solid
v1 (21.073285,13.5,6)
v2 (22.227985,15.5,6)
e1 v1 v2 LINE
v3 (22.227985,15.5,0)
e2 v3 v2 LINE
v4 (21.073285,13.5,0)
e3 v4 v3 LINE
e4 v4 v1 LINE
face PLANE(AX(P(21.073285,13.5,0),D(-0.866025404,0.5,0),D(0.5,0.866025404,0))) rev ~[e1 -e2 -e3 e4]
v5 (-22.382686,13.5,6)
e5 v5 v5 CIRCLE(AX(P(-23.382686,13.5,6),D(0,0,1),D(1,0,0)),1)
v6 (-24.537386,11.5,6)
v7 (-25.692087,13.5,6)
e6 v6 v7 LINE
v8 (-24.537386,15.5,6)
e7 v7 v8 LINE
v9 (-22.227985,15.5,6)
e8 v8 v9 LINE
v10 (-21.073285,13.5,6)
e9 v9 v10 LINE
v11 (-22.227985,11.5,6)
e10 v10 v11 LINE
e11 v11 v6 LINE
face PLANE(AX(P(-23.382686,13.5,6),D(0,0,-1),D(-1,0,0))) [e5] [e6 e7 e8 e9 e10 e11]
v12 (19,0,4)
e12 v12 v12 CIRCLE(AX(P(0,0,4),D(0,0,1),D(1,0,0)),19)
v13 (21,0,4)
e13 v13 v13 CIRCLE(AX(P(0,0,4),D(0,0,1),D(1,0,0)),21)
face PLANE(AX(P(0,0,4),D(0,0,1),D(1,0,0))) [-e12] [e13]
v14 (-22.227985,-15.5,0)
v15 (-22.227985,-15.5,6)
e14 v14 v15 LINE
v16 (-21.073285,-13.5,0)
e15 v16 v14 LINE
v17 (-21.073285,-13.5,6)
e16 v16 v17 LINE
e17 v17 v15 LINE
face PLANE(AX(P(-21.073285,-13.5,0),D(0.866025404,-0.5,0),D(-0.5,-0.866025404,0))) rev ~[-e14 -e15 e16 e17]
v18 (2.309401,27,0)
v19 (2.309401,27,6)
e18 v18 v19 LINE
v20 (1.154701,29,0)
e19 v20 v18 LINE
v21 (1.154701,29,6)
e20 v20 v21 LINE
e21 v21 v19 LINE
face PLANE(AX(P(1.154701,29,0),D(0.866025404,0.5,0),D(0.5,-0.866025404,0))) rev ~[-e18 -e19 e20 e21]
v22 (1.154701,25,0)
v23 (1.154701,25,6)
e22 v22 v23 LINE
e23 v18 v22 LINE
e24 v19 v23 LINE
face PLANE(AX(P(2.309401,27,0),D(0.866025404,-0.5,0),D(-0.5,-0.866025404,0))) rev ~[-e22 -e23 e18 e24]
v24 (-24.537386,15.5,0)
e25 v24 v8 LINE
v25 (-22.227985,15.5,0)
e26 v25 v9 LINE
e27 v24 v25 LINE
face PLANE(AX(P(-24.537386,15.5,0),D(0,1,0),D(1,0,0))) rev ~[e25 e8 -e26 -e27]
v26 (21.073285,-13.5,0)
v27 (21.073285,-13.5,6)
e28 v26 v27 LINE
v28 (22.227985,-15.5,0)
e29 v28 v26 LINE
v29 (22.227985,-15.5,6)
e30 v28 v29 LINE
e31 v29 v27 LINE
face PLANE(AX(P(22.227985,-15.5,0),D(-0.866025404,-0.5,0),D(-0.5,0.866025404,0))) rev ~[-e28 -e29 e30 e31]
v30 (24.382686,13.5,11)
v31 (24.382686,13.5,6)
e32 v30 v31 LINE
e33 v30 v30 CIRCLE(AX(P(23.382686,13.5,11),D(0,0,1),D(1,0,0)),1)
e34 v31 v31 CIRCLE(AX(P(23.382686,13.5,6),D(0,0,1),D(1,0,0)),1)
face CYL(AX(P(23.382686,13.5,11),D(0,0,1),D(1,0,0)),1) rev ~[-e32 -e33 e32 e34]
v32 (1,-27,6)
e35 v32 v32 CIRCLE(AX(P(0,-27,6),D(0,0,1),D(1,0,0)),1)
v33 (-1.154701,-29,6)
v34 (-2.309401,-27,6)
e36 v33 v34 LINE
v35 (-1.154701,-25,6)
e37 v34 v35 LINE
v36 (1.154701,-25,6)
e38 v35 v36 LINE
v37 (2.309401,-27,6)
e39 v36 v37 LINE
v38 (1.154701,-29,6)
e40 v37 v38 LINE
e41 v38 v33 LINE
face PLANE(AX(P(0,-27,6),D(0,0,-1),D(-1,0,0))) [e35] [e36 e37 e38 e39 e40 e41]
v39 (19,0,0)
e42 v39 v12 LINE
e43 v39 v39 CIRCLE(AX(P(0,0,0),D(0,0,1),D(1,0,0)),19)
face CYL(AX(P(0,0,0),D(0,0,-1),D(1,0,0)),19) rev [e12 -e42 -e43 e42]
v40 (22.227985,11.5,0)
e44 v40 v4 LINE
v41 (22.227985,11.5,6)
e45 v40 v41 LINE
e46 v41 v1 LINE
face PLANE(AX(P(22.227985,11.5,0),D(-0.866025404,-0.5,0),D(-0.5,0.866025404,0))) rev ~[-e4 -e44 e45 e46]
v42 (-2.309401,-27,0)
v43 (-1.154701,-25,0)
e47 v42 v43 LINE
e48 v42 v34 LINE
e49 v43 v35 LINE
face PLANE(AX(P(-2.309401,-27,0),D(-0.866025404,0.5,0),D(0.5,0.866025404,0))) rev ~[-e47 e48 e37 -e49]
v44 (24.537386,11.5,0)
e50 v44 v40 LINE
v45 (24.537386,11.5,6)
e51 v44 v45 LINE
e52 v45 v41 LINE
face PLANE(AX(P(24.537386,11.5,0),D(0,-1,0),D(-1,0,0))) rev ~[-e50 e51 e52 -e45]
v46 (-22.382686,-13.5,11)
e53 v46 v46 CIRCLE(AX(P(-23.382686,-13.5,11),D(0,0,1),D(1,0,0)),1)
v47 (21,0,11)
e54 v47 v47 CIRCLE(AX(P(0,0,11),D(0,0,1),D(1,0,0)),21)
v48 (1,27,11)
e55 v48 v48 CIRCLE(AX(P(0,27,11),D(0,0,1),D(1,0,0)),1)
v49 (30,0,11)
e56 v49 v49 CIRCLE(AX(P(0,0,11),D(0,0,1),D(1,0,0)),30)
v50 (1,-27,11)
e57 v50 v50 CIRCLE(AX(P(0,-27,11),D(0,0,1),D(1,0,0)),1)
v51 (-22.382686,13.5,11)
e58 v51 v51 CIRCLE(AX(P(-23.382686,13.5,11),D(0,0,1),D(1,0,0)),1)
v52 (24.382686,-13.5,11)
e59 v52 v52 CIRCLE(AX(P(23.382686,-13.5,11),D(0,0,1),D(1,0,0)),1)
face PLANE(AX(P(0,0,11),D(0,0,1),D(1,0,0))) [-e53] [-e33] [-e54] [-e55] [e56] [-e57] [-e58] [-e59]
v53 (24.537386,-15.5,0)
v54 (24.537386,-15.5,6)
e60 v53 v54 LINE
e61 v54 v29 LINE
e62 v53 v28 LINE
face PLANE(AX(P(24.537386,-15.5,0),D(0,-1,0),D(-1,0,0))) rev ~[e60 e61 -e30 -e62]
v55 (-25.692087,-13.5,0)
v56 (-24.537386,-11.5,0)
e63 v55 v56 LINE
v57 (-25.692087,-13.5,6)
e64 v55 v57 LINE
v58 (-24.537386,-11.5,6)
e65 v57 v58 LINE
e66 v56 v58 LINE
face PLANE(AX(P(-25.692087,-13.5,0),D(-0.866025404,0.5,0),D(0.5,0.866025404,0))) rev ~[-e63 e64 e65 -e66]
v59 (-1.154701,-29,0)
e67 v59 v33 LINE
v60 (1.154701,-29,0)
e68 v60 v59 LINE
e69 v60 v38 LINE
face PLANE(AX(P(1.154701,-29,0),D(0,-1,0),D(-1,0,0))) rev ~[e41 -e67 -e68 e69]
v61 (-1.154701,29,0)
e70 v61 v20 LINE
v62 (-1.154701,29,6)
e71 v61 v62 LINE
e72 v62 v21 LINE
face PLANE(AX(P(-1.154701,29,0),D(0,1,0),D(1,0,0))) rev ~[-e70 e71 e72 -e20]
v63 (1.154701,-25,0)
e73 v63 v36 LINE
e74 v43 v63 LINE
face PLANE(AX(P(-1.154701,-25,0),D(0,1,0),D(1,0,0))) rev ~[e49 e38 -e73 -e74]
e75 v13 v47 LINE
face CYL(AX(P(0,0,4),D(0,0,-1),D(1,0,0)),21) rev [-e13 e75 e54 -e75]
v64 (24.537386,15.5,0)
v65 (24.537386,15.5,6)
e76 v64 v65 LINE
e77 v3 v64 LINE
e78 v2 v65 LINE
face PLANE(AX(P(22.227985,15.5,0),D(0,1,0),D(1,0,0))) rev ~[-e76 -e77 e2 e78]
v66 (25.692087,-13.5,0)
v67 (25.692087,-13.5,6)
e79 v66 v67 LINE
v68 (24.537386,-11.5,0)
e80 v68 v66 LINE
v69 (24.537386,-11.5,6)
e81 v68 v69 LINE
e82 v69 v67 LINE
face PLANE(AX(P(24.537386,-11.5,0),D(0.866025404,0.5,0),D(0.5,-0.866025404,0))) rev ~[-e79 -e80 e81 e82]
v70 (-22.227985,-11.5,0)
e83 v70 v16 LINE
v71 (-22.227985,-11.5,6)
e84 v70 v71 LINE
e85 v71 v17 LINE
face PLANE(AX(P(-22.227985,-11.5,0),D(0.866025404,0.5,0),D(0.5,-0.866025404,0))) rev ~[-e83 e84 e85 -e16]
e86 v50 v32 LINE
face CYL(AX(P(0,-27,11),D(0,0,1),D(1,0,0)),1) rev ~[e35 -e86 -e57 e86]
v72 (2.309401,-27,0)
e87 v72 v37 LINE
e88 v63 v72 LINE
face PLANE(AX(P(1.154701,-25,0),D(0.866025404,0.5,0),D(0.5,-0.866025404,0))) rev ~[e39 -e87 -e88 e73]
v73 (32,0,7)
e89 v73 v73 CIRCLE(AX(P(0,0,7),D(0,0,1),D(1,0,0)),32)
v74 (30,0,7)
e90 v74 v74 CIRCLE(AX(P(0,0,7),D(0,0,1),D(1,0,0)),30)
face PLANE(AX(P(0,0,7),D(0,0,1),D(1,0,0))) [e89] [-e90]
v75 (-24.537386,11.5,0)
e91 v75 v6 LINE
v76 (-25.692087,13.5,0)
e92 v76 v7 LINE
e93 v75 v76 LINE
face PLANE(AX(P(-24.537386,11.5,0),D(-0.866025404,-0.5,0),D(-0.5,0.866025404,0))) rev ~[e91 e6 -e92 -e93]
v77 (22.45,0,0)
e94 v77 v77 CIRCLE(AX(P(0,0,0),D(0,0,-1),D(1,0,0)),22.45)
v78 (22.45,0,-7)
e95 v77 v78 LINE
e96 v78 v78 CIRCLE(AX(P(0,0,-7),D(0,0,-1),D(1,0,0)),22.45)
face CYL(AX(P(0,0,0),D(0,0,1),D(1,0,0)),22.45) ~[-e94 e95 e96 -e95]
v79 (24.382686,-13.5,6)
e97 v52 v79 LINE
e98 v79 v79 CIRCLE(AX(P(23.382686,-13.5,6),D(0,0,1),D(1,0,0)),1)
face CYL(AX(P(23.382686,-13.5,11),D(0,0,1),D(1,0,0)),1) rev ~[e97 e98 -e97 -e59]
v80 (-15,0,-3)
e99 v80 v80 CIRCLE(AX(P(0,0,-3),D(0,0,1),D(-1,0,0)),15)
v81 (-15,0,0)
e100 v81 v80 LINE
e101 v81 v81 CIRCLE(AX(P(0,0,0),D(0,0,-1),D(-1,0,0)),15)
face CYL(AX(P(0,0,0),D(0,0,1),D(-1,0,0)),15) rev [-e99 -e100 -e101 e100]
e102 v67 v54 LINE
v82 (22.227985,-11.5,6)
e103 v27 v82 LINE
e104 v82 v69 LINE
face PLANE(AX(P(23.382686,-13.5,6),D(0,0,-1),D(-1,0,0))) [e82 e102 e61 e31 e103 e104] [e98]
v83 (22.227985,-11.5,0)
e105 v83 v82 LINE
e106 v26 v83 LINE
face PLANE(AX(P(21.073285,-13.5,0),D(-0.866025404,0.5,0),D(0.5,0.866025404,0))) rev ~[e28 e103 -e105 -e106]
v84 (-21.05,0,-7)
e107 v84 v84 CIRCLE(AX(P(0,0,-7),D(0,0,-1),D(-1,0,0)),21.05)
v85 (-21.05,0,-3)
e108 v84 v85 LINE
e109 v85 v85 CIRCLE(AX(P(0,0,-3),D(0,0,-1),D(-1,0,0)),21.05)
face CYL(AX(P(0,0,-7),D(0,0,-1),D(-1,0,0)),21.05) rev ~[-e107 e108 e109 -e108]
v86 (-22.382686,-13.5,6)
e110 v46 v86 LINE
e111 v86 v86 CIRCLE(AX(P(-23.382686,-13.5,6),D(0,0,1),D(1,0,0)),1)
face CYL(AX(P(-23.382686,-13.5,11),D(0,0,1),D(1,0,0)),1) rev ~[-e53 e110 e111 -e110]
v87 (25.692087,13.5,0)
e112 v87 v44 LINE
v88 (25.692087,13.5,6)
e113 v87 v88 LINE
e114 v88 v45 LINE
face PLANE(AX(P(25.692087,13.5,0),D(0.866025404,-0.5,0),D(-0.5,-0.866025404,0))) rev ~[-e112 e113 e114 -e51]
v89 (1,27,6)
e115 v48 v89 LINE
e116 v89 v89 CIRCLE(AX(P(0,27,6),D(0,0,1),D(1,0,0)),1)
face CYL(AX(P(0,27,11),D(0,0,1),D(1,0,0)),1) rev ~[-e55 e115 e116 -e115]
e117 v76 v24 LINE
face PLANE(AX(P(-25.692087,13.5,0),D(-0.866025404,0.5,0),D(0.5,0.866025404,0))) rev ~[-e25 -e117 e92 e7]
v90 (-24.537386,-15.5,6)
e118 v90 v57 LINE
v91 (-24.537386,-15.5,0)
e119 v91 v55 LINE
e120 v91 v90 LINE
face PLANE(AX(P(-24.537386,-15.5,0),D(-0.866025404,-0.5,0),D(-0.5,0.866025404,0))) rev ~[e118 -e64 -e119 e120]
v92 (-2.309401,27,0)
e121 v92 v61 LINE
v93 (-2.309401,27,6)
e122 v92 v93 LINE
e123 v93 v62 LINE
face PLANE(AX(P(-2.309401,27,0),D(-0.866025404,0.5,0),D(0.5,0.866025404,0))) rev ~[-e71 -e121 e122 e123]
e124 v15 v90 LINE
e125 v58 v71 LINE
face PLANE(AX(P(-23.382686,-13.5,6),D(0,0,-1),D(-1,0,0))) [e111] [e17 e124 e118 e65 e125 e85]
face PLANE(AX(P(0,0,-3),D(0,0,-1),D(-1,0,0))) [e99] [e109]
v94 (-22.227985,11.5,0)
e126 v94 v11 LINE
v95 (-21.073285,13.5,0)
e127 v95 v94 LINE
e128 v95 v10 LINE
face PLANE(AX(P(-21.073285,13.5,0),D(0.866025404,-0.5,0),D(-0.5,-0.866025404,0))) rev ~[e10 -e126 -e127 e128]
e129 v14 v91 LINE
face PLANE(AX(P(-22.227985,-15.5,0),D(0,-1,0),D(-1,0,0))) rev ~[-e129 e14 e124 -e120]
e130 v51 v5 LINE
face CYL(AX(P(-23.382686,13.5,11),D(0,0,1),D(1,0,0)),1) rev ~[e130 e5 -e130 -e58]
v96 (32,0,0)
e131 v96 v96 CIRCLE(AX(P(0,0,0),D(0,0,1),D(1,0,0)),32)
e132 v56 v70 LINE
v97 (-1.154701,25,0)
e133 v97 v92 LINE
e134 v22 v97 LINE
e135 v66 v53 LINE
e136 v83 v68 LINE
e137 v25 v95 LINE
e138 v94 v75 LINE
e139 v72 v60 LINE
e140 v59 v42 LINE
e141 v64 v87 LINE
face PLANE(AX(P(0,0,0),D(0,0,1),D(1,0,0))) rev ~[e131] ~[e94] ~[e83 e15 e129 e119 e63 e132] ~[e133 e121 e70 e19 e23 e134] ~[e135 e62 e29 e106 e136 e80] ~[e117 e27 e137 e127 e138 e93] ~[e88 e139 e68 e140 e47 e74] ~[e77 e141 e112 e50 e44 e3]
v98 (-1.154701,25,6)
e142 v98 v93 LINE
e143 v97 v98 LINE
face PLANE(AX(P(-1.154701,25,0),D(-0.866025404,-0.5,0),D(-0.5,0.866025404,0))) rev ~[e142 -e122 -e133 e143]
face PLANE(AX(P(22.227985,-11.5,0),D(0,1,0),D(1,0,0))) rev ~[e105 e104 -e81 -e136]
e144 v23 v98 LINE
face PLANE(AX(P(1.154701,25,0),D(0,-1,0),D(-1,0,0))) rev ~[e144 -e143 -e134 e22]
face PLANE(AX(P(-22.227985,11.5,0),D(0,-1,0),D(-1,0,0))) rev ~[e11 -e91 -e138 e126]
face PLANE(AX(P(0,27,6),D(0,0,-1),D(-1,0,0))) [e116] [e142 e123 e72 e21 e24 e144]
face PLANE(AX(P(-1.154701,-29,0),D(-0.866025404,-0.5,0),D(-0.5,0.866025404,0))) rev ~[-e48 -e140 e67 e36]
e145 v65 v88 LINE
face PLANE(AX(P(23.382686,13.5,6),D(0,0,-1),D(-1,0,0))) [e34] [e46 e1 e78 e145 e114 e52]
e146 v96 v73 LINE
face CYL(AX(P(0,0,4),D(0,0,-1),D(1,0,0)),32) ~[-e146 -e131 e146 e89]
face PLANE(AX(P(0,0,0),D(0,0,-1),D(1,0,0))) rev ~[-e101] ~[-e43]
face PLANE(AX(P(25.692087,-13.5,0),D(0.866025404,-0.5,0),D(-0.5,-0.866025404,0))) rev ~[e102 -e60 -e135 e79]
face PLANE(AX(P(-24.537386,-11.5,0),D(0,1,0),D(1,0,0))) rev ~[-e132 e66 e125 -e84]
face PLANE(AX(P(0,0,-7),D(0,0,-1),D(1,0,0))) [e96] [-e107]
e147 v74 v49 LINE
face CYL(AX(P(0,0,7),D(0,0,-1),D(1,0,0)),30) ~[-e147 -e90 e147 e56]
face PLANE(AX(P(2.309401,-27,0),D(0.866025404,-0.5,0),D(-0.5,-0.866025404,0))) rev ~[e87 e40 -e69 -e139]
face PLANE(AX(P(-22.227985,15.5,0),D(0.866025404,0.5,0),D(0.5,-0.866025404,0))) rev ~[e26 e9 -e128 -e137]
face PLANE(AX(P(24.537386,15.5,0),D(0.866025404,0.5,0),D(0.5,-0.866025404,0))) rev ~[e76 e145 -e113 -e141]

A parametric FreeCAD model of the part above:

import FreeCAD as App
import Part
import Sketcher

V = App.Vector
Q = App.Units.Quantity


def add_polygon(sketch, points):
    """Adds a closed chain of lines whose ends are joined by coincident constraints."""
    first, n = sketch.GeometryCount, len(points)
    for a, b in zip(points, points[1:] + points[:1]):
        sketch.addGeometry(Part.LineSegment(App.Vector(*a, 0), App.Vector(*b, 0)), False)
    for i in range(n):
        sketch.addConstraint(Sketcher.Constraint("Coincident", first + i, 2, first + (i + 1) % n, 1))

doc = App.newDocument("Part")
body = doc.addObject("PartDesign::Body", "Body")

# Sketch on XY plane
sketch1 = body.newObject("Sketcher::SketchObject", "Sketch")
sketch1.AttachmentSupport = (doc.getObject("XY_Plane"), [""])
sketch1.MapMode = "FlatFace"
sketch1.addGeometry([
    Part.Circle(V(0, 0, 0), V(0, 0, 1), 32),
    Part.Circle(V(0, 0, 0), V(0, 0, 1), 19),
], False)
sketch1.addConstraint([
    Sketcher.Constraint("Coincident", 0, 3, -1, 1),
    Sketcher.Constraint("Coincident", 1, 3, -1, 1),
    Sketcher.Constraint("Diameter", 0, Q("64 mm")),
    Sketcher.Constraint("Diameter", 1, Q("38 mm")),
])
pad1 = body.newObject("PartDesign::Pad", "Pad")
pad1.Profile = sketch1
pad1.Length = 4

# Sketch on XY plane
sketch2 = body.newObject("Sketcher::SketchObject", "Sketch001")
sketch2.AttachmentSupport = (doc.getObject("XY_Plane"), [""])
sketch2.MapMode = "FlatFace"
sketch2.AttachmentOffset = App.Placement(V(0, 0, 4), App.Rotation())
sketch2.addGeometry([
    Part.Circle(V(0, 0, 0), V(0, 0, 1), 32),
    Part.Circle(V(0, 0, 0), V(0, 0, 1), 21),
], False)
sketch2.addConstraint([
    Sketcher.Constraint("Coincident", 0, 3, -1, 1),
    Sketcher.Constraint("Coincident", 1, 3, -1, 1),
    Sketcher.Constraint("Diameter", 0, Q("64 mm")),
    Sketcher.Constraint("Diameter", 1, Q("42 mm")),
])
pad2 = body.newObject("PartDesign::Pad", "Pad001")
pad2.Profile = sketch2
pad2.Length = 7

# Sketch on XY plane
sketch3 = body.newObject("Sketcher::SketchObject", "Sketch002")
sketch3.AttachmentSupport = (doc.getObject("XY_Plane"), [""])
sketch3.MapMode = "FlatFace"
sketch3.AttachmentOffset = App.Placement(V(0, 0, 11), App.Rotation())
sketch3.addGeometry([
    Part.Circle(V(0, 27, 0), V(0, 0, 1), 1),  # 0
    Part.Circle(V(23.382686, 13.5, 0), V(0, 0, 1), 1),  # 1
    Part.Circle(V(23.382686, -13.5, 0), V(0, 0, 1), 1),  # 2
    Part.Circle(V(0, -27, 0), V(0, 0, 1), 1),  # 3
    Part.Circle(V(-23.382686, -13.5, 0), V(0, 0, 1), 1),  # 4
    Part.Circle(V(-23.382686, 13.5, 0), V(0, 0, 1), 1),  # 5
], False)
sketch3.addConstraint([
    Sketcher.Constraint("Equal", 0, 1),
    Sketcher.Constraint("Equal", 1, 2),
    Sketcher.Constraint("Equal", 2, 3),
    Sketcher.Constraint("Equal", 3, 4),
    Sketcher.Constraint("Equal", 4, 5),
    Sketcher.Constraint("Symmetric", 0, 3, 3, 3, -1, 1),
    Sketcher.Constraint("Symmetric", 1, 3, 4, 3, -1, 1),
    Sketcher.Constraint("Symmetric", 2, 3, 5, 3, -1, 1),
    Sketcher.Constraint("Symmetric", 2, 3, 4, 3, -2),
    Sketcher.Constraint("PointOnObject", 0, 3, -2),
    Sketcher.Constraint("Diameter", 0, Q("2 mm")),
    Sketcher.Constraint("DistanceY", -1, 1, 0, 3, Q("27 mm")),
    Sketcher.Constraint("DistanceY", 2, 3, 1, 3, Q("27 mm")),
    Sketcher.Constraint("DistanceX", 4, 3, 2, 3, Q("46.765372 mm")),
])
pocket1 = body.newObject("PartDesign::Pocket", "Pocket")
pocket1.Profile = sketch3
pocket1.Type = "ThroughAll"

# Sketch on XY plane
sketch4 = body.newObject("Sketcher::SketchObject", "Sketch003")
sketch4.AttachmentSupport = (doc.getObject("XY_Plane"), [""])
sketch4.MapMode = "FlatFace"
add_polygon(sketch4, [(-21.073285, 13.5), (-22.227985, 11.5), (-24.537386, 11.5), (-25.692087, 13.5), (-24.537386, 15.5), (-22.227985, 15.5)])  # lines 0-5
add_polygon(sketch4, [(1.154701, 25), (-1.154701, 25), (-2.309401, 27), (-1.154701, 29), (1.154701, 29), (2.309401, 27)])  # lines 6-11
add_polygon(sketch4, [(-22.227985, -11.5), (-21.073285, -13.5), (-22.227985, -15.5), (-24.537386, -15.5), (-25.692087, -13.5), (-24.537386, -11.5)])  # lines 12-17
add_polygon(sketch4, [(-1.154701, -25), (1.154701, -25), (2.309401, -27), (1.154701, -29), (-1.154701, -29), (-2.309401, -27)])  # lines 18-23
add_polygon(sketch4, [(21.073285, -13.5), (22.227985, -11.5), (24.537386, -11.5), (25.692087, -13.5), (24.537386, -15.5), (22.227985, -15.5)])  # lines 24-29
add_polygon(sketch4, [(22.227985, 11.5), (21.073285, 13.5), (22.227985, 15.5), (24.537386, 15.5), (25.692087, 13.5), (24.537386, 11.5)])  # lines 30-35
sketch4.addConstraint([
    Sketcher.Constraint("Horizontal", 1),
    Sketcher.Constraint("Horizontal", 4),
    Sketcher.Constraint("Horizontal", 6),
    Sketcher.Constraint("Horizontal", 9),
    Sketcher.Constraint("Horizontal", 14),
    Sketcher.Constraint("Horizontal", 17),
    Sketcher.Constraint("Horizontal", 18),
    Sketcher.Constraint("Horizontal", 21),
    Sketcher.Constraint("Horizontal", 25),
    Sketcher.Constraint("Horizontal", 28),
    Sketcher.Constraint("Horizontal", 32),
    Sketcher.Constraint("Horizontal", 35),
    Sketcher.Constraint("Symmetric", 6, 2, 18, 2, -1, 1),
    Sketcher.Constraint("Symmetric", 7, 2, 19, 2, -1, 1),
    Sketcher.Constraint("Symmetric", 8, 2, 20, 2, -1, 1),
    Sketcher.Constraint("Symmetric", 10, 2, 22, 2, -1, 1),
    Sketcher.Constraint("Symmetric", 0, 2, 24, 2, -1, 1),
    Sketcher.Constraint("Symmetric", 2, 2, 26, 2, -1, 1),
    Sketcher.Constraint("Symmetric", 3, 2, 27, 2, -1, 1),
    Sketcher.Constraint("Symmetric", 5, 2, 29, 2, -1, 1),
    Sketcher.Constraint("Symmetric", 12, 2, 30, 2, -1, 1),
    Sketcher.Constraint("Symmetric", 13, 2, 31, 2, -1, 1),
    Sketcher.Constraint("Symmetric", 15, 2, 33, 2, -1, 1),
    Sketcher.Constraint("Symmetric", 16, 2, 34, 2, -1, 1),
    Sketcher.Constraint("Symmetric", 7, 2, 10, 2, -2),
    Sketcher.Constraint("Symmetric", 17, 2, 24, 2, -2),
    Sketcher.Constraint("Symmetric", 15, 2, 26, 2, -2),
    Sketcher.Constraint("Symmetric", 14, 2, 27, 2, -2),
    Sketcher.Constraint("Symmetric", 12, 2, 29, 2, -2),
    Sketcher.Constraint("Parallel", 0, 3),
    Sketcher.Constraint("Parallel", 2, 5),
    Sketcher.Constraint("Parallel", 5, 7),
    Sketcher.Constraint("Parallel", 3, 8),
    Sketcher.Constraint("Parallel", 7, 10),
    Sketcher.Constraint("Parallel", 8, 11),
    Sketcher.Constraint("Parallel", 10, 12),
    Sketcher.Constraint("Parallel", 11, 13),
    Sketcher.Constraint("Parallel", 13, 16),
    Sketcher.Constraint("Parallel", 19, 22),
    Sketcher.Constraint("Parallel", 20, 23),
    Sketcher.Constraint("Parallel", 22, 26),
    Sketcher.Constraint("Parallel", 26, 29),
    Sketcher.Constraint("Parallel", 29, 30),
    Sketcher.Constraint("Parallel", 30, 33),
    Sketcher.Constraint("Horizontal", 2, 2, 5, 2),
    Sketcher.Constraint("Vertical", 1, 2, 3, 2),
    Sketcher.Constraint("Vertical", 6, 2, 8, 2),
    Sketcher.Constraint("Equal", 4, 6),
    Sketcher.Constraint("Equal", 5, 7),
    Sketcher.Constraint("Angle", 0, Q("-120 deg")),
    Sketcher.Constraint("DistanceY", -1, 1, 6, 2, Q("25 mm")),
    Sketcher.Constraint("DistanceY", -1, 1, 7, 2, Q("27 mm")),
    Sketcher.Constraint("DistanceY", 12, 2, 0, 2, Q("25 mm")),
    Sketcher.Constraint("DistanceX", 1, 2, 1, 1, Q("2.309401 mm")),
    Sketcher.Constraint("DistanceX", 0, 2, -1, 1, Q("22.227985 mm")),
])
pocket2 = body.newObject("PartDesign::Pocket", "Pocket001")
pocket2.Profile = sketch4
pocket2.Length = 6
pocket2.Reversed = True

# Sketch on XY plane
sketch5 = body.newObject("Sketcher::SketchObject", "Sketch004")
sketch5.AttachmentSupport = (doc.getObject("XY_Plane"), [""])
sketch5.MapMode = "FlatFace"
sketch5.addGeometry([
    Part.Circle(V(0, 0, 0), V(0, 0, 1), 22.45),
    Part.Circle(V(0, 0, 0), V(0, 0, 1), 15),
], False)
sketch5.addConstraint([
    Sketcher.Constraint("Coincident", 0, 3, -1, 1),
    Sketcher.Constraint("Coincident", 1, 3, -1, 1),
    Sketcher.Constraint("Diameter", 1, Q("30 mm")),
    Sketcher.Constraint("Diameter", 0, Q("44.9 mm")),
])
pad3 = body.newObject("PartDesign::Pad", "Pad002")
pad3.Profile = sketch5
pad3.Length = 7
pad3.Reversed = True

# Sketch on XY plane
sketch6 = body.newObject("Sketcher::SketchObject", "Sketch005")
sketch6.AttachmentSupport = (doc.getObject("XY_Plane"), [""])
sketch6.MapMode = "FlatFace"
sketch6.AttachmentOffset = App.Placement(V(0, 0, -7), App.Rotation())
sketch6.addGeometry(Part.Circle(V(0, 0, 0), V(0, 0, 1), 21.05), False)
sketch6.addConstraint([
    Sketcher.Constraint("Coincident", 0, 3, -1, 1),
    Sketcher.Constraint("Diameter", 0, Q("42.1 mm")),
])
pocket3 = body.newObject("PartDesign::Pocket", "Pocket002")
pocket3.Profile = sketch6
pocket3.Length = 4
pocket3.Reversed = True

# Sketch on XY plane
sketch7 = body.newObject("Sketcher::SketchObject", "Sketch006")
sketch7.AttachmentSupport = (doc.getObject("XY_Plane"), [""])
sketch7.MapMode = "FlatFace"
sketch7.AttachmentOffset = App.Placement(V(0, 0, 7), App.Rotation())
sketch7.addGeometry([
    Part.Circle(V(0, 0, 0), V(0, 0, 1), 32),
    Part.Circle(V(0, 0, 0), V(0, 0, 1), 30),
], False)
sketch7.addConstraint([
    Sketcher.Constraint("Coincident", 0, 3, -1, 1),
    Sketcher.Constraint("Coincident", 1, 3, -1, 1),
    Sketcher.Constraint("Diameter", 0, Q("64 mm")),
    Sketcher.Constraint("Diameter", 1, Q("60 mm")),
])
pocket4 = body.newObject("PartDesign::Pocket", "Pocket003")
pocket4.Profile = sketch7
pocket4.Length = 4
pocket4.Reversed = True

doc.recompute()
